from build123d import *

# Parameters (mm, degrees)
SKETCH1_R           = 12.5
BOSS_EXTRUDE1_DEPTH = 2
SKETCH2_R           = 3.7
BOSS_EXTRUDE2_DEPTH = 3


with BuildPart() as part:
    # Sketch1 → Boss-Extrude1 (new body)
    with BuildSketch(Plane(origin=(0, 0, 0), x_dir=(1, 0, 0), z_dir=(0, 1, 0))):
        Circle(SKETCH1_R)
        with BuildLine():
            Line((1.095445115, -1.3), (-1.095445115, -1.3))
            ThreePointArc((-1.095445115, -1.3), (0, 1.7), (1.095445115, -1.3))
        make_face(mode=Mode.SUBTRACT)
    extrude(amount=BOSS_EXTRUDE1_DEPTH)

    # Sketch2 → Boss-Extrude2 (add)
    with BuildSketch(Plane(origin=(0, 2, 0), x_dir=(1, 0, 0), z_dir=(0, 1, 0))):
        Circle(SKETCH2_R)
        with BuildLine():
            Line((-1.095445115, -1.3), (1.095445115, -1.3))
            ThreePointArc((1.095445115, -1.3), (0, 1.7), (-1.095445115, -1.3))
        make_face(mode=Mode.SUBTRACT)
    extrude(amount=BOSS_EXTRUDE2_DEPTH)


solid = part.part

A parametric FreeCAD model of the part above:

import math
import FreeCAD as App
import Part
import Sketcher

V = App.Vector
Q = App.Units.Quantity

doc = App.newDocument("Part")
body = doc.addObject("PartDesign::Body", "Body")

# Sketch on XZ plane
sketch1 = body.newObject("Sketcher::SketchObject", "Sketch")
sketch1.AttachmentSupport = (doc.getObject("XZ_Plane"), [""])
sketch1.MapMode = "FlatFace"
sketch1.addGeometry([
    Part.Circle(V(0, 0, 0), V(0, 0, 1), 12.5),
    Part.ArcOfCircle(Part.Circle(V(0, 0, 0), V(0, 0, 1), 1.7), math.radians(130), math.radians(410)),
    Part.LineSegment(V(1.1, 1.3, 0), V(-1.1, 1.3, 0)),
], False)
sketch1.addConstraint([
    Sketcher.Constraint("Coincident", 1, 1, 2, 2),
    Sketcher.Constraint("Coincident", 2, 1, 1, 2),
    Sketcher.Constraint("Horizontal", 2),
    Sketcher.Constraint("Coincident", 0, 3, -1, 1),
    Sketcher.Constraint("Coincident", 1, 3, -1, 1),
    Sketcher.Constraint("Diameter", 0, Q("25 mm")),
    Sketcher.Constraint("Radius", 1, Q("1.7 mm")),
    Sketcher.Constraint("DistanceY", -1, 1, 1, 1, Q("1.3 mm")),
])
pad1 = body.newObject("PartDesign::Pad", "Pad")
pad1.Profile = sketch1
pad1.Length = 2
pad1.Reversed = True

# Sketch on XZ plane
sketch2 = body.newObject("Sketcher::SketchObject", "Sketch001")
sketch2.AttachmentSupport = (doc.getObject("XZ_Plane"), [""])
sketch2.MapMode = "FlatFace"
sketch2.AttachmentOffset = App.Placement(V(0, 0, -2), App.Rotation())
sketch2.addGeometry([
    Part.Circle(V(0, 0, 0), V(0, 0, 1), 3.7),
    Part.LineSegment(V(1.1, 1.3, 0), V(-1.1, 1.3, 0)),
    Part.ArcOfCircle(Part.Circle(V(0, 0, 0), V(0, 0, 1), 1.7), math.radians(130), math.radians(410)),
], False)
sketch2.addConstraint([
    Sketcher.Constraint("Coincident", 1, 1, 2, 2),
    Sketcher.Constraint("Coincident", 2, 1, 1, 2),
    Sketcher.Constraint("Horizontal", 1),
    Sketcher.Constraint("Coincident", 0, 3, -1, 1),
    Sketcher.Constraint("Coincident", 2, 3, -1, 1),
    Sketcher.Constraint("Diameter", 0, Q("7.4 mm")),
    Sketcher.Constraint("Radius", 2, Q("1.7 mm")),
    Sketcher.Constraint("DistanceY", -1, 1, 1, 1, Q("1.3 mm")),
])
pad2 = body.newObject("PartDesign::Pad", "Pad001")
pad2.Profile = sketch2
pad2.Length = 3
pad2.Reversed = True

doc.recompute()
